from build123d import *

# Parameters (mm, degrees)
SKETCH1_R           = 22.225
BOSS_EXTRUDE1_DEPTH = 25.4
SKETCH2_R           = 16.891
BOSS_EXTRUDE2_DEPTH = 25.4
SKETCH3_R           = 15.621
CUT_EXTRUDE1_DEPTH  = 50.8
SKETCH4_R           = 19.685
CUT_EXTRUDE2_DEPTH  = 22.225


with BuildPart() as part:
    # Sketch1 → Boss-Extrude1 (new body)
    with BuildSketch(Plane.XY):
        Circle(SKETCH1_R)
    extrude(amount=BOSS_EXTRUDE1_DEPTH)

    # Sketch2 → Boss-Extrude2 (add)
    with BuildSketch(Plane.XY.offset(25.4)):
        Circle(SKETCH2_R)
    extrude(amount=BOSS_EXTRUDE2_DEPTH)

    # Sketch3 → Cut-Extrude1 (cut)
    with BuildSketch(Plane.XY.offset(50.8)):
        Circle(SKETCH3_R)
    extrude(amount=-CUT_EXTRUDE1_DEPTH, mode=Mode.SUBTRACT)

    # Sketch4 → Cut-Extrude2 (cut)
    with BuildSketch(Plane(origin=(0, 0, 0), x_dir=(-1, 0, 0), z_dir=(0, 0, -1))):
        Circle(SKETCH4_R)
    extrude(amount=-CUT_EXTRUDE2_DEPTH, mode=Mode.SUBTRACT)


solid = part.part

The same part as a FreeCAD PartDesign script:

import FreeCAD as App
import Part
import Sketcher

V = App.Vector
Q = App.Units.Quantity

doc = App.newDocument("Part")
body = doc.addObject("PartDesign::Body", "Body")

# Sketch on XY plane
sketch1 = body.newObject("Sketcher::SketchObject", "Sketch")
sketch1.AttachmentSupport = (doc.getObject("XY_Plane"), [""])
sketch1.MapMode = "FlatFace"
sketch1.addGeometry(Part.Circle(V(0, 0, 0), V(0, 0, 1), 22), False)
sketch1.addConstraint([
    Sketcher.Constraint("Coincident", 0, 3, -1, 1),
    Sketcher.Constraint("Diameter", 0, Q("1.75 in")),
])
pad1 = body.newObject("PartDesign::Pad", "Pad")
pad1.Profile = sketch1
pad1.Length = Q("1 in")

# Sketch on XY plane
sketch2 = body.newObject("Sketcher::SketchObject", "Sketch001")
sketch2.AttachmentSupport = (doc.getObject("XY_Plane"), [""])
sketch2.MapMode = "FlatFace"
sketch2.AttachmentOffset = App.Placement(V(0, 0, 1 * 25.4), App.Rotation())
sketch2.addGeometry(Part.Circle(V(0, 0, 0), V(0, 0, 1), 17), False)
sketch2.addConstraint([
    Sketcher.Constraint("Coincident", 0, 3, -1, 1),
    Sketcher.Constraint("Diameter", 0, Q("1.33 in")),
])
pad2 = body.newObject("PartDesign::Pad", "Pad001")
pad2.Profile = sketch2
pad2.Length = Q("1 in")

# Sketch on XY plane
sketch3 = body.newObject("Sketcher::SketchObject", "Sketch002")
sketch3.AttachmentSupport = (doc.getObject("XY_Plane"), [""])
sketch3.MapMode = "FlatFace"
sketch3.AttachmentOffset = App.Placement(V(0, 0, 2 * 25.4), App.Rotation())
sketch3.addGeometry(Part.Circle(V(0, 0, 0), V(0, 0, 1), 16), False)
sketch3.addConstraint([
    Sketcher.Constraint("Coincident", 0, 3, -1, 1),
    Sketcher.Constraint("Diameter", 0, Q("1.23 in")),
])
pocket1 = body.newObject("PartDesign::Pocket", "Pocket")
pocket1.Profile = sketch3
pocket1.Length = Q("2 in")

# Sketch on XY plane
sketch4 = body.newObject("Sketcher::SketchObject", "Sketch003")
sketch4.AttachmentSupport = (doc.getObject("XY_Plane"), [""])
sketch4.MapMode = "FlatFace"
sketch4.addGeometry(Part.Circle(V(0, 0, 0), V(0, 0, 1), 20), False)
sketch4.addConstraint([
    Sketcher.Constraint("Coincident", 0, 3, -1, 1),
    Sketcher.Constraint("Diameter", 0, Q("1.55 in")),
])
pocket2 = body.newObject("PartDesign::Pocket", "Pocket001")
pocket2.Profile = sketch4
pocket2.Length = Q("0.875 in")
pocket2.Reversed = True

doc.recompute()
